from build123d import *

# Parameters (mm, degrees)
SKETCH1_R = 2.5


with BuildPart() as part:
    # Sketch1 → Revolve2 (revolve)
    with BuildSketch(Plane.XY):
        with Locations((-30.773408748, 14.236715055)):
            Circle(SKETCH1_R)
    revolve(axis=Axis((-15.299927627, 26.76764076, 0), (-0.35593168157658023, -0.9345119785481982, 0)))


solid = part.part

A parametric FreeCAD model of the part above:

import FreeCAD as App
import Part
import Sketcher
from FreeCAD import Vector

doc = App.newDocument("Part")
body = doc.addObject("PartDesign::Body", "Body")

# Sketch on XY plane
sketch1 = body.newObject("Sketcher::SketchObject", "Sketch")
sketch1.AttachmentSupport = (doc.getObject("XY_Plane"), [""])
sketch1.MapMode = "FlatFace"
sketch1.addGeometry(Part.Circle(Vector(-30.8, 14.2, 0), Vector(0, 0, 1), 2.5), False)
sketch1.addGeometry(Part.LineSegment(Vector(-21.4, 10.7, 0), Vector(-25, 1.3, 0)), True)  # axis
sketch1.addConstraint(Sketcher.Constraint("Diameter", 0, 5.0))
sketch1.addConstraint(Sketcher.Constraint("Distance", 1, 10.0))
sketch1.addConstraint(Sketcher.Constraint("DistanceY", -1, 1, 1, 1, 10.677398))
sketch1.addConstraint(Sketcher.Constraint("DistanceX", 0, 3, -1, 1, 30.773409))
sketch1.addConstraint(Sketcher.Constraint("DistanceX", 1, 1, -1, 1, 21.428289))
sketch1.addConstraint(Sketcher.Constraint("DistanceY", -1, 1, 1, 2, 1.332278))
sketch1.addConstraint(Sketcher.Constraint("DistanceY", -1, 1, 0, 3, 14.236715))
revolution = body.newObject("PartDesign::Revolution", "Revolution")
revolution.Profile = sketch1
revolution.ReferenceAxis = (sketch1, ["Axis0"])
revolution.Angle = 360

doc.recompute()
